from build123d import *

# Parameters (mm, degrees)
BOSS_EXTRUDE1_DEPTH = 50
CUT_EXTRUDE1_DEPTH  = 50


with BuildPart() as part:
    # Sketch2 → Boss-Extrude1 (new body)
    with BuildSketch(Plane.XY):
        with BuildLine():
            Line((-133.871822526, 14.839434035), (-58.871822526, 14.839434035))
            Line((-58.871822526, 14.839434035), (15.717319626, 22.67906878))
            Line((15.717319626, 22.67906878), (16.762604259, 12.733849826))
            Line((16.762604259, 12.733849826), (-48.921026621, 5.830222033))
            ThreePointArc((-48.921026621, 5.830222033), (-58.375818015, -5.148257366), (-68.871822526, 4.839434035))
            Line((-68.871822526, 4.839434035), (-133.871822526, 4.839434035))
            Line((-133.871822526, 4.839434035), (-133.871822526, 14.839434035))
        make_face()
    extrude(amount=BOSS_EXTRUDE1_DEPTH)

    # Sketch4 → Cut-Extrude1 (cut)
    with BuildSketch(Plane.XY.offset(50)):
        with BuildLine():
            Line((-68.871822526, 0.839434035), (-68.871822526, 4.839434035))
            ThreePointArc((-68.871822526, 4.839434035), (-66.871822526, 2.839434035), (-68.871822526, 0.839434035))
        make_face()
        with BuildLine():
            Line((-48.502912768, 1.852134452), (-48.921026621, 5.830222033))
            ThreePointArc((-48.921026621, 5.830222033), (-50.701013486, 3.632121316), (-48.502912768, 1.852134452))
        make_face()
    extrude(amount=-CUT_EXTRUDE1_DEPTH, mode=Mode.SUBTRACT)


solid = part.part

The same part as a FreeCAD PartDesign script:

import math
import FreeCAD as App
import Part
import Sketcher

V = App.Vector
Q = App.Units.Quantity

doc = App.newDocument("Part")
body = doc.addObject("PartDesign::Body", "Body")

sketch1 = body.newObject("Sketcher::SketchObject", "Sketch")
sketch1.AttachmentSupport = (doc.getObject("XY_Plane"), [""])
sketch1.MapMode = "FlatFace"
sketch1.addGeometry([
    Part.LineSegment(V(-59, 15, 0), V(-134, 15, 0)),
    Part.LineSegment(V(-134, 15, 0), V(-134, 5, 0)),
    Part.LineSegment(V(-134, 5, 0), V(-69, 5, 0)),
    Part.ArcOfCircle(Part.Circle(V(-59, 5, 0), V(0, 0, 1), 10), math.radians(180), math.radians(366)),
    Part.LineSegment(V(-49, 6, 0), V(17, 13, 0)),
    Part.LineSegment(V(17, 13, 0), V(16, 23, 0)),
    Part.LineSegment(V(16, 23, 0), V(-59, 15, 0)),
], False)
sketch1.addConstraint([
    Sketcher.Constraint("Coincident", 0, 2, 1, 1),
    Sketcher.Constraint("Coincident", 1, 2, 2, 1),
    Sketcher.Constraint("Coincident", 2, 2, 3, 1),
    Sketcher.Constraint("Coincident", 3, 2, 4, 1),
    Sketcher.Constraint("Coincident", 4, 2, 5, 1),
    Sketcher.Constraint("Coincident", 5, 2, 6, 1),
    Sketcher.Constraint("Coincident", 6, 2, 0, 1),
    Sketcher.Constraint("Horizontal", 0),
    Sketcher.Constraint("Vertical", 1),
    Sketcher.Constraint("Horizontal", 2),
    Sketcher.Constraint("Perpendicular", 4, 5),
    Sketcher.Constraint("Perpendicular", 5, 6),
    Sketcher.Constraint("Horizontal", 3, 3, 1, 2),
    Sketcher.Constraint("Vertical", 3, 3, 6, 2),
    Sketcher.Constraint("Radius", 3, 10.0),
    Sketcher.Constraint("DistanceX", 0, 2, 0, 1, 75.0),
    Sketcher.Constraint("DistanceY", 1, 2, 1, 1, 10.0),
    Sketcher.Constraint("Angle", 4, Q("6 deg")),
    Sketcher.Constraint("Distance", 5, 10.0),
    Sketcher.Constraint("Distance", 6, 75.0),
    Sketcher.Constraint("DistanceY", -1, 1, 4, 2, 12.73385),
    Sketcher.Constraint("DistanceX", -1, 1, 5, 2, 15.71732),
])
pad1 = body.newObject("PartDesign::Pad", "Pad")
pad1.Profile = sketch1
pad1.Length = 50

sketch2 = body.newObject("Sketcher::SketchObject", "Sketch001")
sketch2.AttachmentSupport = (doc.getObject("XY_Plane"), [""])
sketch2.MapMode = "FlatFace"
sketch2.AttachmentOffset = App.Placement(V(0, 0, 50), App.Rotation())
sketch2.addGeometry([
    Part.LineSegment(V(-68.9, 4.8, 0), V(-68.9, 0.8, 0)),
    Part.ArcOfCircle(Part.Circle(V(-68.9, 2.8, 0), V(0, 0, 1), 2), math.radians(-90), math.radians(90)),
    Part.LineSegment(V(-48.5, 1.9, 0), V(-48.9, 5.8, 0)),
    Part.ArcOfCircle(Part.Circle(V(-48.7, 3.8, 0), V(0, 0, 1), 2), math.radians(96), math.radians(276)),
], False)
sketch2.addConstraint([
    Sketcher.Constraint("Coincident", 0, 1, 1, 2),
    Sketcher.Constraint("Coincident", 1, 1, 0, 2),
    Sketcher.Constraint("Coincident", 2, 1, 3, 2),
    Sketcher.Constraint("Coincident", 3, 1, 2, 2),
    Sketcher.Constraint("Vertical", 0),
    Sketcher.Constraint("Equal", 1, 3),
    Sketcher.Constraint("Vertical", 1, 3, 0, 1),
    Sketcher.Constraint("Radius", 1, 2.0),
    Sketcher.Constraint("Angle", 2, Q("96 deg")),
    Sketcher.Constraint("DistanceY", 2, 1, 1, 3, 0.9873),
    Sketcher.Constraint("DistanceX", 3, 3, -1, 1, 48.71197),
    Sketcher.Constraint("DistanceY", -1, 1, 3, 3, 3.841178),
    Sketcher.Constraint("DistanceX", 1, 3, 2, 1, 20.36891),
    Sketcher.Constraint("DistanceX", 1, 3, -1, 1, 68.871823),
])
pocket1 = body.newObject("PartDesign::Pocket", "Pocket")
pocket1.Profile = sketch2
pocket1.Length = 50

doc.recompute()
